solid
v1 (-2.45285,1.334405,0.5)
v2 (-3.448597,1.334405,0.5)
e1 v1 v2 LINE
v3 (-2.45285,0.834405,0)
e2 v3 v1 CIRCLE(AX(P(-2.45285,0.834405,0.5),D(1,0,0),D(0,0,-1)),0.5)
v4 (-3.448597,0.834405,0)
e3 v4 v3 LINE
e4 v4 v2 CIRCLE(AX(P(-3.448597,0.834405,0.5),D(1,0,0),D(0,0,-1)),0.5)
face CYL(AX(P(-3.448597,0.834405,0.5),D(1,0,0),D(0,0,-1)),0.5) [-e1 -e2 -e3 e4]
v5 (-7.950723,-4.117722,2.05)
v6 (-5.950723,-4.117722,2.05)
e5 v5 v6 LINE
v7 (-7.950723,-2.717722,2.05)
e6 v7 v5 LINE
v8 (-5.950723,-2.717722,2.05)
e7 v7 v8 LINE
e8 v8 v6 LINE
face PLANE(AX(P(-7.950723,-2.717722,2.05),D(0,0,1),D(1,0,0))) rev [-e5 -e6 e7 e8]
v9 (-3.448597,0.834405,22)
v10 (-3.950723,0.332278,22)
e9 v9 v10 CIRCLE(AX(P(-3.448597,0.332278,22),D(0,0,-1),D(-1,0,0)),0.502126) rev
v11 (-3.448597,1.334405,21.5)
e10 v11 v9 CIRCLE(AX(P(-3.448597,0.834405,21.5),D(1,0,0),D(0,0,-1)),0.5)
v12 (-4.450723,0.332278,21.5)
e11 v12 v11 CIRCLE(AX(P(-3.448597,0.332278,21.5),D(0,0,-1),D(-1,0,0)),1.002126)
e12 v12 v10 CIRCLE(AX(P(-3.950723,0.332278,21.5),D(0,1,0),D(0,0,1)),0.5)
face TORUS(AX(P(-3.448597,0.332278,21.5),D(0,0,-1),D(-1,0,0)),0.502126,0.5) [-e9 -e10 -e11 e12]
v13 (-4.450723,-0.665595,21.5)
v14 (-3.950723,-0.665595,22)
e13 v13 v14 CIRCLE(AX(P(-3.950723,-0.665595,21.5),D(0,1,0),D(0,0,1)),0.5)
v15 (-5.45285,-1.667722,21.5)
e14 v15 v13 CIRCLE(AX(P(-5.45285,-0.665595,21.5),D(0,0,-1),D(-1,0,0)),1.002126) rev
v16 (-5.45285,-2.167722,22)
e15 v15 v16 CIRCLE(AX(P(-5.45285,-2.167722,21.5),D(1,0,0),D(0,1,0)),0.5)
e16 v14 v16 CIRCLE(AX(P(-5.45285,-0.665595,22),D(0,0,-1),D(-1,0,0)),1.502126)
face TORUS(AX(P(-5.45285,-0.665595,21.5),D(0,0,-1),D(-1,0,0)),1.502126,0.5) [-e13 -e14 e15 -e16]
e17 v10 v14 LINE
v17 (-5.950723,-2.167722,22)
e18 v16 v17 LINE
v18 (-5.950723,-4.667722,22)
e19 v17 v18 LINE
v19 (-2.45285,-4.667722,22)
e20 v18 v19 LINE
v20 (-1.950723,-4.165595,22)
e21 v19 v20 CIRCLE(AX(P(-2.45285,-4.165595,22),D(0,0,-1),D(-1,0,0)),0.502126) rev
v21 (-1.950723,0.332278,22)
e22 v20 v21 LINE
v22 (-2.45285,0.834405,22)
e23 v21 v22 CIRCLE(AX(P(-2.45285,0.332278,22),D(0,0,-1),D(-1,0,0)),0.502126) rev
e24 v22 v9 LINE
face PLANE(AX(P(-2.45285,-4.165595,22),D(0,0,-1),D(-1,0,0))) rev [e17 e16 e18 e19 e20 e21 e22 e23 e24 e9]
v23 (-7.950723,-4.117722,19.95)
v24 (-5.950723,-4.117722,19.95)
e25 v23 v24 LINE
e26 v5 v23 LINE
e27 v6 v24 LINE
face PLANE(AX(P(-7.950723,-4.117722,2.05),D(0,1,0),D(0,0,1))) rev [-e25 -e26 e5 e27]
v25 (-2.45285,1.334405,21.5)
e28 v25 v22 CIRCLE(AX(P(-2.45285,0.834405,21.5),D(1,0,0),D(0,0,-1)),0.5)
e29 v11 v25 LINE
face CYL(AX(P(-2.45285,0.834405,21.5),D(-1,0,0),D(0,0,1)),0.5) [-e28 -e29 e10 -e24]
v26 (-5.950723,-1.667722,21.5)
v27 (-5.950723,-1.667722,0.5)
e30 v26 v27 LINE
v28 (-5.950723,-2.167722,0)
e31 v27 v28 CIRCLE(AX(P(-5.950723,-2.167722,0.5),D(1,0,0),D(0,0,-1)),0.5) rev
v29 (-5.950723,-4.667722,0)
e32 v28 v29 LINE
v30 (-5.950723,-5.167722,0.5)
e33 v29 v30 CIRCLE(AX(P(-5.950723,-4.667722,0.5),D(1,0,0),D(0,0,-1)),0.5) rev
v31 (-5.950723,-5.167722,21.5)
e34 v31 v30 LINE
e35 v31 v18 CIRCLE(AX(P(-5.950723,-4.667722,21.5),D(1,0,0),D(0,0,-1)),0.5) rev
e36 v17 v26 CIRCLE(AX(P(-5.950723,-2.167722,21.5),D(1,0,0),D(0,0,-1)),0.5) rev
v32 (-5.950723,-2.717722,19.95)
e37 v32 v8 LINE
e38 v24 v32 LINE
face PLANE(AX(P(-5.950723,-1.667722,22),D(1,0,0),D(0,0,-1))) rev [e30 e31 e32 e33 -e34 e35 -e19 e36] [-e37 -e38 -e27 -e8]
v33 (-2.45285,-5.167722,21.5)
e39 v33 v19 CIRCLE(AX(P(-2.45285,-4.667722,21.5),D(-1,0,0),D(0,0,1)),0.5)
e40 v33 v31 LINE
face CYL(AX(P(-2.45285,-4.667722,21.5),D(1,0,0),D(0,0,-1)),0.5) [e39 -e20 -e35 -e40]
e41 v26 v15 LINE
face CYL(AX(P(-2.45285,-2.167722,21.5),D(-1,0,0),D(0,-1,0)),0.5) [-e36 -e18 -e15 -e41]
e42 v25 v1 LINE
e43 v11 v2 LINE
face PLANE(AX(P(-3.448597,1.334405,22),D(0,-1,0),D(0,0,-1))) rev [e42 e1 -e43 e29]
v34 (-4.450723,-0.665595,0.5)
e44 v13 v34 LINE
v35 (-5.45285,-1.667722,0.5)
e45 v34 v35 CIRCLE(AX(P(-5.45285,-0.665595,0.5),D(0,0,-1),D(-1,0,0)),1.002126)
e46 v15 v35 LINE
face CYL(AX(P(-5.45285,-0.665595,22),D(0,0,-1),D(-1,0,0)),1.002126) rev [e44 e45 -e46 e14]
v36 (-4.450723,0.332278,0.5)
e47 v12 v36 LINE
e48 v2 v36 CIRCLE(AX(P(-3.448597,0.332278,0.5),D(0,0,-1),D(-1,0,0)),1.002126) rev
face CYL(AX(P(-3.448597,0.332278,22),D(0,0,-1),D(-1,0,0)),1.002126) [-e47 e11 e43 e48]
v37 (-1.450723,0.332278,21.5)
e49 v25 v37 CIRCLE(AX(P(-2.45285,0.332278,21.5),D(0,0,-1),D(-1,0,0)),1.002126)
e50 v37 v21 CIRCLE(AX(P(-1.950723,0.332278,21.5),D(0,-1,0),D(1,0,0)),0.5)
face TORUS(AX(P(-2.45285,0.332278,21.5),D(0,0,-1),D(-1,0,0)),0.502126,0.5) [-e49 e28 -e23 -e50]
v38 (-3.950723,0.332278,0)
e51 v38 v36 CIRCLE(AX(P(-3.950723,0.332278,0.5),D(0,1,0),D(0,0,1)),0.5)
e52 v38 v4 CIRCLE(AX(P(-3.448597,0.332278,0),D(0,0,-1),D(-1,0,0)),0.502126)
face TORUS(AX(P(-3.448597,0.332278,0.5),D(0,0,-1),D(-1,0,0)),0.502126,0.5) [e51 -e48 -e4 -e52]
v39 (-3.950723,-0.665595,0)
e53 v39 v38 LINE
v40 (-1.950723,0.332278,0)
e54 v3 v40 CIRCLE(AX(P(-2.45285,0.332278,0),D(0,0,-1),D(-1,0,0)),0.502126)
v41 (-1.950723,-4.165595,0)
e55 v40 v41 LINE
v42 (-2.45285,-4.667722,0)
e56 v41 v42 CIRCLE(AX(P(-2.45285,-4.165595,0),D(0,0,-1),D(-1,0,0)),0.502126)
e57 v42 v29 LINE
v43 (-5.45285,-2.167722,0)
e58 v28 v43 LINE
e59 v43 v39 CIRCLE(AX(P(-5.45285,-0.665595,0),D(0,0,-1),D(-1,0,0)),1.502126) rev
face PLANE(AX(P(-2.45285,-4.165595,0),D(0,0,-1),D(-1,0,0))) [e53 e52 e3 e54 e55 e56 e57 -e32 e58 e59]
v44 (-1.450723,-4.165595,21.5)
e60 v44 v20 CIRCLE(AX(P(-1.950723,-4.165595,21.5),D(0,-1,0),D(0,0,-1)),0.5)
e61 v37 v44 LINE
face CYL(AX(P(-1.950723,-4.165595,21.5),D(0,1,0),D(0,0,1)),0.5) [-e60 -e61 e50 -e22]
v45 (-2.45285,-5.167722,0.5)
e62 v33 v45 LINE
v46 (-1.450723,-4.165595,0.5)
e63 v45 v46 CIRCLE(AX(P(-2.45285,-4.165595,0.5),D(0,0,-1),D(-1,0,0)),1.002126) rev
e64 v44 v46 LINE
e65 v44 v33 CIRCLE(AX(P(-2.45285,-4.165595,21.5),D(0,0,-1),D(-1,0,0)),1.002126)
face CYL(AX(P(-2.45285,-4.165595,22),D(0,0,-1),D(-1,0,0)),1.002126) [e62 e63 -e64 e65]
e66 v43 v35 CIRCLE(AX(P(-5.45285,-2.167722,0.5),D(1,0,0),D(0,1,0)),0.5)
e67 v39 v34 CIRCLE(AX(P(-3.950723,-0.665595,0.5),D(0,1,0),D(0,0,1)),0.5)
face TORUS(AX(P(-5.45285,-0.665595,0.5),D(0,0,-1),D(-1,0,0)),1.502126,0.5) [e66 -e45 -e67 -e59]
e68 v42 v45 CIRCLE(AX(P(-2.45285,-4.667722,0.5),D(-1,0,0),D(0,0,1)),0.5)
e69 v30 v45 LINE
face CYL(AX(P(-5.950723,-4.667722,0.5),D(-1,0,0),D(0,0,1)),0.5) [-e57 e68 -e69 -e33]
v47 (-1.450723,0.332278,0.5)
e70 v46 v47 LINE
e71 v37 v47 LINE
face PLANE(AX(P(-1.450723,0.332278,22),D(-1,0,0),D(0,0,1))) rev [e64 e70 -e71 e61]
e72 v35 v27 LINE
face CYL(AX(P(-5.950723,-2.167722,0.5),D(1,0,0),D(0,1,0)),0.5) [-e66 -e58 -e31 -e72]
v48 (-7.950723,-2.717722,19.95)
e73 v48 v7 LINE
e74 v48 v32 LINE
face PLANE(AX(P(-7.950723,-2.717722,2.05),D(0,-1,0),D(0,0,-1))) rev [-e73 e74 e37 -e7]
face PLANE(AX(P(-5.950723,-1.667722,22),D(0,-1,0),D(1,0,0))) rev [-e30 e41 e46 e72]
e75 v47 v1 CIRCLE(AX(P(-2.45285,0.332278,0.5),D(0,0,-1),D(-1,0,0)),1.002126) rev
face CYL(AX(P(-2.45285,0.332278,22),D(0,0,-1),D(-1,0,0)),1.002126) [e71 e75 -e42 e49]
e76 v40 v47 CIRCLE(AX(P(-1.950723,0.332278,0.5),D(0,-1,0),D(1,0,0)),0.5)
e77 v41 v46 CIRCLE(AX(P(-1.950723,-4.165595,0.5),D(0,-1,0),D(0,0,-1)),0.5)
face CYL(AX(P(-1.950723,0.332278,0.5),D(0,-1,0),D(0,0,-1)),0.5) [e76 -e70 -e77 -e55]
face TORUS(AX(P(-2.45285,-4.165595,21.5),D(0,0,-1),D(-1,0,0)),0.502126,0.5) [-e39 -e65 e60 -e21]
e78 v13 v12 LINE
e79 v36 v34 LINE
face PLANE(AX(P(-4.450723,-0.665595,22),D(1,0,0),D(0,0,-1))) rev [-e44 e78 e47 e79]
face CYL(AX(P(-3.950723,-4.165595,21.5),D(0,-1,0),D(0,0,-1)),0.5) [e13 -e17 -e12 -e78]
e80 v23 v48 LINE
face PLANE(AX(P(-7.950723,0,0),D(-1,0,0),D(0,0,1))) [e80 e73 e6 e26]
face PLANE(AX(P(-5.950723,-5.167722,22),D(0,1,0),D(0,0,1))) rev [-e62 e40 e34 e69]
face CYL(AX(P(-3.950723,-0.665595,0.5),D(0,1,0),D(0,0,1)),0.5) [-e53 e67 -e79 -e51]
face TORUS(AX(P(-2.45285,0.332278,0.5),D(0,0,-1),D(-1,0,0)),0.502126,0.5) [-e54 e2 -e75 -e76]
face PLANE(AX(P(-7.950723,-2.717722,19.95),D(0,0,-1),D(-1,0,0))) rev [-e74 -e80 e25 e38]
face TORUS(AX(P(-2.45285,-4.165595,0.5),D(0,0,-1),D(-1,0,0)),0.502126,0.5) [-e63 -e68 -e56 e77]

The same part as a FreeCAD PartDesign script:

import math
import FreeCAD as App
import Part
import Sketcher


def edges_at(feature, points):
    """Names of the edges that pass closest to the given points."""
    edges = feature.Shape.Edges
    near = lambda p: min(range(len(edges)), key=lambda i: edges[i].distToShape(Part.Vertex(*p))[0])
    return sorted({f"Edge{near(p) + 1}" for p in points})


def add_polygon(sketch, points):
    """Adds a closed chain of lines whose ends are joined by coincident constraints."""
    first, n = sketch.GeometryCount, len(points)
    for a, b in zip(points, points[1:] + points[:1]):
        sketch.addGeometry(Part.LineSegment(App.Vector(*a, 0), App.Vector(*b, 0)), False)
    for i in range(n):
        sketch.addConstraint(Sketcher.Constraint("Coincident", first + i, 2, first + (i + 1) % n, 1))

doc = App.newDocument("Part")
params = doc.addObject("Spreadsheet::Sheet", "Params")
for row, (alias, value) in enumerate([
    ("sketch1_height", "3.5 mm"),
    ("pad1_length", "22 mm"),
    ("fillet_radius", "0.5 mm"),
    ("sketch2_width", "1.4 mm"),
    ("sketch2_height", "17.9 mm"),
    ("pad2_length", "2 mm"),
], start=1):
    params.set(f"A{row}", alias)
    params.set(f"B{row}", "=" + value)
    params.setAlias(f"B{row}", alias)

body = doc.addObject("PartDesign::Body", "Body")

# Sketch on XY plane
sketch1 = body.newObject("Sketcher::SketchObject", "Sketch")
sketch1.AttachmentSupport = (doc.getObject("XY_Plane"), [""])
sketch1.MapMode = "FlatFace"
sketch1.addGeometry([
    Part.LineSegment(App.Vector(-5.45, -1.67, 0), App.Vector(-5.95, -1.67, 0)),  # 0
    Part.LineSegment(App.Vector(-5.95, -1.67, 0), App.Vector(-5.95, -5.17, 0)),  # 1
    Part.LineSegment(App.Vector(-5.95, -5.17, 0), App.Vector(-2.45, -5.17, 0)),  # 2
    Part.ArcOfCircle(Part.Circle(App.Vector(-2.45, -4.17, 0), App.Vector(0, 0, 1), 1), math.radians(-90), math.radians(0)),  # 3
    Part.LineSegment(App.Vector(-1.45, -4.17, 0), App.Vector(-1.45, 0.33, 0)),  # 4
    Part.ArcOfCircle(Part.Circle(App.Vector(-2.45, 0.33, 0), App.Vector(0, 0, 1), 1), math.radians(0), math.radians(90)),  # 5
    Part.LineSegment(App.Vector(-2.45, 1.33, 0), App.Vector(-3.45, 1.33, 0)),  # 6
    Part.ArcOfCircle(Part.Circle(App.Vector(-3.45, 0.33, 0), App.Vector(0, 0, 1), 1), math.radians(90), math.radians(180)),  # 7
    Part.LineSegment(App.Vector(-4.45, 0.33, 0), App.Vector(-4.45, -0.67, 0)),  # 8
    Part.ArcOfCircle(Part.Circle(App.Vector(-5.45, -0.67, 0), App.Vector(0, 0, 1), 1), math.radians(-90), math.radians(0)),  # 9
], False)
sketch1.addConstraint([
    Sketcher.Constraint("Coincident", 0, 2, 1, 1),
    Sketcher.Constraint("Coincident", 1, 2, 2, 1),
    Sketcher.Constraint("Tangent", 2, 2, 3, 1),
    Sketcher.Constraint("Tangent", 3, 2, 4, 1),
    Sketcher.Constraint("Tangent", 4, 2, 5, 1),
    Sketcher.Constraint("Tangent", 5, 2, 6, 1),
    Sketcher.Constraint("Tangent", 6, 2, 7, 1),
    Sketcher.Constraint("Tangent", 7, 2, 8, 1),
    Sketcher.Constraint("Tangent", 8, 2, 9, 2),
    Sketcher.Constraint("Tangent", 9, 1, 0, 1),
    Sketcher.Constraint("Horizontal", 0),
    Sketcher.Constraint("Vertical", 1),
    Sketcher.Constraint("Horizontal", 2),
    Sketcher.Constraint("Vertical", 4),
    Sketcher.Constraint("Horizontal", 6),
    Sketcher.Constraint("Vertical", 8),
    Sketcher.Constraint("Equal", 3, 5),
    Sketcher.Constraint("Equal", 5, 7),
    Sketcher.Constraint("Equal", 7, 9),
    Sketcher.Constraint("DistanceY", 1, 2, 1, 1, 3.5),
    Sketcher.Constraint("DistanceX", 9, 3, 5, 3, 3.0),
    Sketcher.Constraint("DistanceY", 0, 2, 7, 3, 2.0),
    Sketcher.Constraint("DistanceX", 1, 2, 3, 2, 4.5),
    Sketcher.Constraint("Radius", 3, 1.002126),
    Sketcher.Constraint("DistanceX", 3, 3, -1, 1, 2.45285),
    Sketcher.Constraint("DistanceY", -1, 1, 5, 3, 0.332278),
])
sketch1.setExpression("Constraints[19]", "Params.sketch1_height")
pad1 = body.newObject("PartDesign::Pad", "Pad")
pad1.Profile = sketch1
pad1.setExpression("Length", "Params.pad1_length")
doc.recompute()

fillet = body.newObject("PartDesign::Fillet", "Fillet")
fillet.Base = (pad1, edges_at(pad1, [
    (-1.744, 1.041, 22),
    (-5.702, -1.668, 0),
    (-4.744, -1.374, 0),
    (-4.451, -0.167, 0),
    (-4.157, 1.041, 0),
    (-2.951, 1.334, 0),
    (-1.744, 1.041, 0),
    (-1.451, -1.917, 0),
    (-1.744, -4.874, 0),
    (-2.951, 1.334, 22),
    (-4.157, 1.041, 22),
    (-4.451, -0.167, 22),
    (-4.744, -1.374, 22),
    (-5.702, -1.668, 22),
    (-4.202, -5.168, 22),
    (-1.744, -4.874, 22),
    (-1.451, -1.917, 22),
    (-4.202, -5.168, 0),
]))
fillet.setExpression("Radius", "Params.fillet_radius")

# Sketch on YZ plane
sketch2 = body.newObject("Sketcher::SketchObject", "Sketch001")
sketch2.AttachmentSupport = (doc.getObject("YZ_Plane"), [""])
sketch2.MapMode = "FlatFace"
sketch2.AttachmentOffset = App.Placement(App.Vector(0, 0, -5.950723), App.Rotation())
add_polygon(sketch2, [(-2.7, 2), (-4.1, 2), (-4.1, 19.9), (-2.7, 19.9)])  # lines 0-3
sketch2.addConstraint([
    Sketcher.Constraint("Horizontal", 0),
    Sketcher.Constraint("Vertical", 1),
    Sketcher.Constraint("Horizontal", 2),
    Sketcher.Constraint("Vertical", 3),
    Sketcher.Constraint("DistanceX", 0, 2, 0, 1, 1.4),
    Sketcher.Constraint("DistanceY", 1, 1, 1, 2, 17.9),
    Sketcher.Constraint("DistanceY", -1, 1, 0, 2, 2.05),
    Sketcher.Constraint("DistanceX", 0, 2, -1, 1, 4.117722),
])
sketch2.setExpression("Constraints[8]", "Params.sketch2_width")
sketch2.setExpression("Constraints[9]", "Params.sketch2_height")
pad2 = body.newObject("PartDesign::Pad", "Pad001")
pad2.Profile = sketch2
pad2.setExpression("Length", "Params.pad2_length")
pad2.Reversed = True

doc.recompute()
